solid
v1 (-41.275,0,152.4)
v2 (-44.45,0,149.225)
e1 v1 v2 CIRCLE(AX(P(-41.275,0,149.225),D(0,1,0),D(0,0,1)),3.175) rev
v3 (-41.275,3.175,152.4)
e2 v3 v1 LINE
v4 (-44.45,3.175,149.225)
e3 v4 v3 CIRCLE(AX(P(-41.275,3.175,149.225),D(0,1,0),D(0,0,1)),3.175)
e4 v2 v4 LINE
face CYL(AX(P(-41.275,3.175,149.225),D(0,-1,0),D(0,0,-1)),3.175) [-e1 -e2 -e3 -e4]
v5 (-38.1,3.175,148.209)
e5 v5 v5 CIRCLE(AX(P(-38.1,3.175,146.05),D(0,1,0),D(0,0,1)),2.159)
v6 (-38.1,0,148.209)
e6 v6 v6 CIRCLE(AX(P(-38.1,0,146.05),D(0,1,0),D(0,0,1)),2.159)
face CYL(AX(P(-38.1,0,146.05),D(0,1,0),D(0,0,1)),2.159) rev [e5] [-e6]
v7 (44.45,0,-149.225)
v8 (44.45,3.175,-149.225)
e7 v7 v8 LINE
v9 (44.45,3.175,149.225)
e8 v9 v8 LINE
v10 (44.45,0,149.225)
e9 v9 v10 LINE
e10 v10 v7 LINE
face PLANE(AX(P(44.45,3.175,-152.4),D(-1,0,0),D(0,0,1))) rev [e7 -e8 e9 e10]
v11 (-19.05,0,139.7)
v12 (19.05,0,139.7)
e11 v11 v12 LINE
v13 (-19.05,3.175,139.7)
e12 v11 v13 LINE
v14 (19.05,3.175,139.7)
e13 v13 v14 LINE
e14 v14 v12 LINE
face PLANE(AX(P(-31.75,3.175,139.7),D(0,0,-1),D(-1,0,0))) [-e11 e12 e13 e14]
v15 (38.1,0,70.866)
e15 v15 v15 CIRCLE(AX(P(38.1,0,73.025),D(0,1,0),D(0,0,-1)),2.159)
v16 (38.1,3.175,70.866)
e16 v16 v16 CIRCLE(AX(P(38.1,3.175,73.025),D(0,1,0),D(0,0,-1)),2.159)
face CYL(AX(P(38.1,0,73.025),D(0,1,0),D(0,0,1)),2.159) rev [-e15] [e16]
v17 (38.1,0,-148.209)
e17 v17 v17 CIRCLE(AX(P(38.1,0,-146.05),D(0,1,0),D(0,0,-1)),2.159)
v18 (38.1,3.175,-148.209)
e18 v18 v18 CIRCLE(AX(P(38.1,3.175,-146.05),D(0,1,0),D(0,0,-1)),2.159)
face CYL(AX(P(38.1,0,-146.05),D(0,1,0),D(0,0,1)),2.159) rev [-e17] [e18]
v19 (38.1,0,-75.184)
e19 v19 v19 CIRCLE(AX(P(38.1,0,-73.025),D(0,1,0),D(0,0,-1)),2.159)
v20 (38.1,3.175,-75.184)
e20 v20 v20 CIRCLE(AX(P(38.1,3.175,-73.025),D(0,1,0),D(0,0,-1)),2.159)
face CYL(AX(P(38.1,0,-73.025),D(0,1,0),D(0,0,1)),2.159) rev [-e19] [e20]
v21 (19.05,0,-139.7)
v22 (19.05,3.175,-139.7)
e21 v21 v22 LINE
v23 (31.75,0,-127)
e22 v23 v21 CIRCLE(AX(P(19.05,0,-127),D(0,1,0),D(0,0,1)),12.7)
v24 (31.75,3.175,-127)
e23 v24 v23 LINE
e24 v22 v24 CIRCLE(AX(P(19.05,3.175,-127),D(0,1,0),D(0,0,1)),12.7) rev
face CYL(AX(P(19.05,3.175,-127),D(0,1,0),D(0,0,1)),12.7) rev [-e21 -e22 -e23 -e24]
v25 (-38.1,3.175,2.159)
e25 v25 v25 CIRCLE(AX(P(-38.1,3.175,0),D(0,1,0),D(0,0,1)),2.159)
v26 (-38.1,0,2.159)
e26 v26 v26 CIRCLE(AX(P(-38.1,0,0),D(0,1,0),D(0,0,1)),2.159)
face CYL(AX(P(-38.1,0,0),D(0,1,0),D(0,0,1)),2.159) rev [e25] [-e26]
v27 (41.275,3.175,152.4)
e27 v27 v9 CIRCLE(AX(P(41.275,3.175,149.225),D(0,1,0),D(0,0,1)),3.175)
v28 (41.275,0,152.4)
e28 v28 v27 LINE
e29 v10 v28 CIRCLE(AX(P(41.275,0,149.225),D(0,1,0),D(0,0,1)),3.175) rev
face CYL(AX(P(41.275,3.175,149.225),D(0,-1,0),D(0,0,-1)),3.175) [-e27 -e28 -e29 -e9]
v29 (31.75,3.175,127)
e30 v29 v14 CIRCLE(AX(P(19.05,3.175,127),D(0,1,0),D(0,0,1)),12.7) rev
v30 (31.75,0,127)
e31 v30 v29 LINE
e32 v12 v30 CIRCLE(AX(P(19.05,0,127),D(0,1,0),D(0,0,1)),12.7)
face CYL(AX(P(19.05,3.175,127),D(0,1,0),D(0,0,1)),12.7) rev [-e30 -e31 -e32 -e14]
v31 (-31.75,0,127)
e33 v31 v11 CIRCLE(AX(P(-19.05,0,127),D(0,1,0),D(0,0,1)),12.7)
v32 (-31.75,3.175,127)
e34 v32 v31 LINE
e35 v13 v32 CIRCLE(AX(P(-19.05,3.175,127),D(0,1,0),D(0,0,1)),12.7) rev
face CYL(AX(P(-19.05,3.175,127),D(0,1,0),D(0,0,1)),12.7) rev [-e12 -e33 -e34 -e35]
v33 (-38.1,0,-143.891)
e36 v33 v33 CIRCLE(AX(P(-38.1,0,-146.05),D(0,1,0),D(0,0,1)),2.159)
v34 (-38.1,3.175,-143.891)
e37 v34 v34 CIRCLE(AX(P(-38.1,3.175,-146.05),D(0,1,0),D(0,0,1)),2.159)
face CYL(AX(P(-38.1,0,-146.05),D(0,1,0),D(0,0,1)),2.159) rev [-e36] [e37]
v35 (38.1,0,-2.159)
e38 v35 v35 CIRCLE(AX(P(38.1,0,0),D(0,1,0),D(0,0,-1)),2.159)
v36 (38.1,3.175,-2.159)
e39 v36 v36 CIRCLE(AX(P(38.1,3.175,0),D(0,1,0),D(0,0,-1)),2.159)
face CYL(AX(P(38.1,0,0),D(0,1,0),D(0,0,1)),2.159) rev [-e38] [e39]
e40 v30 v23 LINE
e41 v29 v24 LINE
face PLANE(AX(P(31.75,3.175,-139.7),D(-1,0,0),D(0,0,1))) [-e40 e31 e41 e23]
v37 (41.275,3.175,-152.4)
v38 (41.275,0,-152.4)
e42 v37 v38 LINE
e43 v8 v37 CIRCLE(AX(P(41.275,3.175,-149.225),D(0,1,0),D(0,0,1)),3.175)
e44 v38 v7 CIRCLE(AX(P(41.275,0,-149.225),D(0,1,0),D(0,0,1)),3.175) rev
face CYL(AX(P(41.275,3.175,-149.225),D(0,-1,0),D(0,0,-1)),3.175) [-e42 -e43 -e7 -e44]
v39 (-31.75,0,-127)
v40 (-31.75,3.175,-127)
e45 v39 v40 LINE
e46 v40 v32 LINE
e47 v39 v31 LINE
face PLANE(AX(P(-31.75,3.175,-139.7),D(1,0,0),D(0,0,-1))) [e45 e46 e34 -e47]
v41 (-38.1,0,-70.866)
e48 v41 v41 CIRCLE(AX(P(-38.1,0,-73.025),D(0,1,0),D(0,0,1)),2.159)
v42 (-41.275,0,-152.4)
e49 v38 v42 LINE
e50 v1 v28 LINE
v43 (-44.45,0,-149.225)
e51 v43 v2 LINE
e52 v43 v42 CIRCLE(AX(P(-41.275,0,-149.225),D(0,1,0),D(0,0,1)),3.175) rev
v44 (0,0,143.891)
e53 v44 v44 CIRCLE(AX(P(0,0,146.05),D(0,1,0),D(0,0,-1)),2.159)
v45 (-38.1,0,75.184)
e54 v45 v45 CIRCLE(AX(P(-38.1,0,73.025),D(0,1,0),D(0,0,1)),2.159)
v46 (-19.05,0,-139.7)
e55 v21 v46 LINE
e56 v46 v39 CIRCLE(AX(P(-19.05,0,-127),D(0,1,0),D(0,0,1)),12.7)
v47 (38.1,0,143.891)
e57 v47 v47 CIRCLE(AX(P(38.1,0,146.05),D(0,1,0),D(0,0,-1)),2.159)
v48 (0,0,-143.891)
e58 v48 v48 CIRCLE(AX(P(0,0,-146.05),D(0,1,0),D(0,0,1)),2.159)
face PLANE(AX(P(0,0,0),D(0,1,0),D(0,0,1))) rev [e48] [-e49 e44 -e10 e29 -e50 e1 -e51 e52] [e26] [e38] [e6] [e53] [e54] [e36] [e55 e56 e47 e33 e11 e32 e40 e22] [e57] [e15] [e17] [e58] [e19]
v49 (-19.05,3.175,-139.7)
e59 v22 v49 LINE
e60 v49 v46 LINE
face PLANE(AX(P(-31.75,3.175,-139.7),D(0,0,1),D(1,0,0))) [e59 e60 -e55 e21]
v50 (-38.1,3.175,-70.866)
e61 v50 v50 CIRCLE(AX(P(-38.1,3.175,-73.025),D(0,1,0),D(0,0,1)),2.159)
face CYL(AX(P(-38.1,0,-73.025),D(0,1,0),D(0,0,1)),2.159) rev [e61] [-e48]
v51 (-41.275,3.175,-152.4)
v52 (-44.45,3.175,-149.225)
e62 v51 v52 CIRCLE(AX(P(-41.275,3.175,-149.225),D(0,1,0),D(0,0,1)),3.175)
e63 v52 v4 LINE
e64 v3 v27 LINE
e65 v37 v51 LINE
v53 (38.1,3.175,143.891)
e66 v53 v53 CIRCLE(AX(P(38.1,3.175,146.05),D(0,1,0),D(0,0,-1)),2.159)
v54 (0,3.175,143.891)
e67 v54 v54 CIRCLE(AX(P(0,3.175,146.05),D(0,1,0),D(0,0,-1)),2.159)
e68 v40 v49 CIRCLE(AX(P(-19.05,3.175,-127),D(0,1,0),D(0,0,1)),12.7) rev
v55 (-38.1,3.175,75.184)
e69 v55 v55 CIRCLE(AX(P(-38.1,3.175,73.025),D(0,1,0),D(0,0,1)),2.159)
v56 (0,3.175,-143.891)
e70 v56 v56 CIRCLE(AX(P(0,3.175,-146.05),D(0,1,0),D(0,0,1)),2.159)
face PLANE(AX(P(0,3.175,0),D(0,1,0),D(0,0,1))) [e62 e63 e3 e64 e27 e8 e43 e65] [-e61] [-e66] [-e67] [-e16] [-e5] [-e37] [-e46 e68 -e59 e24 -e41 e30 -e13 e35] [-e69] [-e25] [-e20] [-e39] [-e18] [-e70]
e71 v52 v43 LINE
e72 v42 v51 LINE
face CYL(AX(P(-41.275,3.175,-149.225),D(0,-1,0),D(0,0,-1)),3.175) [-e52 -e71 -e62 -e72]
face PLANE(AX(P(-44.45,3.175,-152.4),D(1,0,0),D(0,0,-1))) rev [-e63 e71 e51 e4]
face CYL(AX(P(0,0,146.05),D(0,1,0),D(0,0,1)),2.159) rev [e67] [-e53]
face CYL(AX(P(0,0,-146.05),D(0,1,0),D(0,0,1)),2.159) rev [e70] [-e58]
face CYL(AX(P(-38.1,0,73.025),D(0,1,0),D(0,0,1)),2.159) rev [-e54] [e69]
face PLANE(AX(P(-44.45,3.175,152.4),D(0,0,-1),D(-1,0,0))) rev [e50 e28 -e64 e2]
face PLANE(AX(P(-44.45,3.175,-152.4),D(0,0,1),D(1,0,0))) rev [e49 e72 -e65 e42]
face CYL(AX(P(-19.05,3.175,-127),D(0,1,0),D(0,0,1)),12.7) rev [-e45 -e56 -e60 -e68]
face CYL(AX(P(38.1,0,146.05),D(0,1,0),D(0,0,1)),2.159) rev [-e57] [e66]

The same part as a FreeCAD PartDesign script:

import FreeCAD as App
import Part
import Sketcher

V = App.Vector
Q = App.Units.Quantity


def edges_at(feature, points):
    """Names of the edges that pass closest to the given points."""
    edges = feature.Shape.Edges
    near = lambda p: min(range(len(edges)), key=lambda i: edges[i].distToShape(Part.Vertex(*p))[0])
    return sorted({f"Edge{near(p) + 1}" for p in points})


def add_polygon(sketch, points):
    """Adds a closed chain of lines whose ends are joined by coincident constraints."""
    first, n = sketch.GeometryCount, len(points)
    for a, b in zip(points, points[1:] + points[:1]):
        sketch.addGeometry(Part.LineSegment(App.Vector(*a, 0), App.Vector(*b, 0)), False)
    for i in range(n):
        sketch.addConstraint(Sketcher.Constraint("Coincident", first + i, 2, first + (i + 1) % n, 1))

doc = App.newDocument("Part")
params = doc.addObject("Spreadsheet::Sheet", "Params")
for row, (alias, value) in enumerate([
    ("sketch1_height", "12 in"),
    ("sketch1_height2", "11 in"),
    ("sketch1_width", "3.5 in"),
    ("sketch1_width2", "2.5 in"),
    ("pad1_length", "0.125 in"),
    ("sketch2_diameter", "0.17 in"),
    ("fillet_radius", "0.5 in"),
    ("fillet2_radius", "0.125 in"),
], start=1):
    params.set(f"A{row}", alias)
    params.set(f"B{row}", "=" + value)
    params.setAlias(f"B{row}", alias)

body = doc.addObject("PartDesign::Body", "Body")

sketch1 = body.newObject("Sketcher::SketchObject", "Sketch")
sketch1.AttachmentSupport = (doc.getObject("XZ_Plane"), [""])
sketch1.MapMode = "FlatFace"
add_polygon(sketch1, [(-44, -152), (-44, 152), (44, 152), (44, -152)])
add_polygon(sketch1, [(32, 140), (-32, 140), (-32, -140), (32, -140)])
sketch1.addConstraint([
    Sketcher.Constraint("Vertical", 0),
    Sketcher.Constraint("Horizontal", 1),
    Sketcher.Constraint("Vertical", 2),
    Sketcher.Constraint("Horizontal", 3),
    Sketcher.Constraint("Horizontal", 4),
    Sketcher.Constraint("Vertical", 5),
    Sketcher.Constraint("Horizontal", 6),
    Sketcher.Constraint("Vertical", 7),
    Sketcher.Constraint("Symmetric", 0, 2, 2, 2, -1, 1),
    Sketcher.Constraint("Symmetric", 4, 2, 6, 2, -1, 1),
    Sketcher.Constraint("DistanceY", 0, 1, 0, 2, Q("12 in")),
    Sketcher.Constraint("DistanceY", 5, 2, 5, 1, Q("11 in")),
    Sketcher.Constraint("DistanceX", 1, 1, 1, 2, Q("3.5 in")),
    Sketcher.Constraint("DistanceX", 4, 2, 4, 1, Q("2.5 in")),
])
sketch1.setExpression("Constraints[18]", "Params.sketch1_height")
sketch1.setExpression("Constraints[19]", "Params.sketch1_height2")
sketch1.setExpression("Constraints[20]", "Params.sketch1_width")
sketch1.setExpression("Constraints[21]", "Params.sketch1_width2")
pad1 = body.newObject("PartDesign::Pad", "Pad")
pad1.Profile = sketch1
pad1.setExpression("Length", "Params.pad1_length")
pad1.Reversed = True

sketch2 = body.newObject("Sketcher::SketchObject", "Sketch001")
sketch2.AttachmentSupport = (doc.getObject("XZ_Plane"), [""])
sketch2.MapMode = "FlatFace"
sketch2.AttachmentOffset = App.Placement(V(0, 0, -0.125 * 25.4), App.Rotation())
sketch2.addGeometry([
    Part.Circle(V(-38.1, -146.1, 0), V(0, 0, 1), 2.2),
    Part.Circle(V(-38.1, -73, 0), V(0, 0, 1), 2.2),
    Part.Circle(V(-38.1, 0, 0), V(0, 0, 1), 2.2),
    Part.Circle(V(-38.1, 73, 0), V(0, 0, 1), 2.2),
    Part.Circle(V(-38.1, 146.1, 0), V(0, 0, 1), 2.2),
    Part.Circle(V(38.1, 146.1, 0), V(0, 0, 1), 2.2),
    Part.Circle(V(38.1, 73, 0), V(0, 0, 1), 2.2),
    Part.Circle(V(38.1, 0, 0), V(0, 0, 1), 2.2),
    Part.Circle(V(38.1, -73, 0), V(0, 0, 1), 2.2),
    Part.Circle(V(38.1, -146.1, 0), V(0, 0, 1), 2.2),
    Part.Circle(V(0, -146.1, 0), V(0, 0, 1), 2.2),
    Part.Circle(V(0, 146.1, 0), V(0, 0, 1), 2.2),
], False)
sketch2.addConstraint([
    Sketcher.Constraint("Equal", 0, 1),
    Sketcher.Constraint("Equal", 1, 2),
    Sketcher.Constraint("Equal", 2, 3),
    Sketcher.Constraint("Equal", 3, 4),
    Sketcher.Constraint("Equal", 4, 5),
    Sketcher.Constraint("Equal", 5, 6),
    Sketcher.Constraint("Equal", 6, 7),
    Sketcher.Constraint("Equal", 7, 8),
    Sketcher.Constraint("Equal", 8, 9),
    Sketcher.Constraint("Equal", 9, 10),
    Sketcher.Constraint("Equal", 10, 11),
    Sketcher.Constraint("Symmetric", 0, 3, 5, 3, -1, 1),
    Sketcher.Constraint("Symmetric", 1, 3, 6, 3, -1, 1),
    Sketcher.Constraint("Symmetric", 2, 3, 7, 3, -1, 1),
    Sketcher.Constraint("Symmetric", 3, 3, 8, 3, -1, 1),
    Sketcher.Constraint("Symmetric", 4, 3, 9, 3, -1, 1),
    Sketcher.Constraint("Symmetric", 10, 3, 11, 3, -1, 1),
    Sketcher.Constraint("Symmetric", 4, 3, 5, 3, -2),
    Sketcher.Constraint("Symmetric", 3, 3, 6, 3, -2),
    Sketcher.Constraint("PointOnObject", 2, 3, -1),
    Sketcher.Constraint("PointOnObject", 10, 3, -2),
    Sketcher.Constraint("Horizontal", 9, 3, 10, 3),
    Sketcher.Constraint("Vertical", 0, 3, 1, 3),
    Sketcher.Constraint("Vertical", 1, 3, 2, 3),
    Sketcher.Constraint("Diameter", 0, Q("0.17 in")),
    Sketcher.Constraint("DistanceX", 4, 3, 5, 3, Q("3 in")),
    Sketcher.Constraint("DistanceY", 0, 3, 4, 3, Q("11.5 in")),
    Sketcher.Constraint("DistanceY", 1, 3, 3, 3, Q("5.75 in")),
])
sketch2.setExpression("Constraints[24]", "Params.sketch2_diameter")
pocket1 = body.newObject("PartDesign::Pocket", "Pocket")
pocket1.Profile = sketch2
pocket1.Type = "ThroughAll"
pocket1.Reversed = True
doc.recompute()

fillet = body.newObject("PartDesign::Fillet", "Fillet")
fillet.Base = (pocket1, edges_at(pocket1, [
    (-31.75, 1.587, -139.7),
    (-31.75, 1.587, 139.7),
    (31.75, 1.587, 139.7),
    (31.75, 1.587, -139.7),
]))
fillet.setExpression("Radius", "Params.fillet_radius")
doc.recompute()

fillet2 = body.newObject("PartDesign::Fillet", "Fillet001")
fillet2.Base = (fillet, edges_at(fillet, [
    (-44.45, 1.587, -152.4),
    (44.45, 1.587, -152.4),
    (44.45, 1.587, 152.4),
    (-44.45, 1.587, 152.4),
]))
fillet2.setExpression("Radius", "Params.fillet2_radius")

doc.recompute()
